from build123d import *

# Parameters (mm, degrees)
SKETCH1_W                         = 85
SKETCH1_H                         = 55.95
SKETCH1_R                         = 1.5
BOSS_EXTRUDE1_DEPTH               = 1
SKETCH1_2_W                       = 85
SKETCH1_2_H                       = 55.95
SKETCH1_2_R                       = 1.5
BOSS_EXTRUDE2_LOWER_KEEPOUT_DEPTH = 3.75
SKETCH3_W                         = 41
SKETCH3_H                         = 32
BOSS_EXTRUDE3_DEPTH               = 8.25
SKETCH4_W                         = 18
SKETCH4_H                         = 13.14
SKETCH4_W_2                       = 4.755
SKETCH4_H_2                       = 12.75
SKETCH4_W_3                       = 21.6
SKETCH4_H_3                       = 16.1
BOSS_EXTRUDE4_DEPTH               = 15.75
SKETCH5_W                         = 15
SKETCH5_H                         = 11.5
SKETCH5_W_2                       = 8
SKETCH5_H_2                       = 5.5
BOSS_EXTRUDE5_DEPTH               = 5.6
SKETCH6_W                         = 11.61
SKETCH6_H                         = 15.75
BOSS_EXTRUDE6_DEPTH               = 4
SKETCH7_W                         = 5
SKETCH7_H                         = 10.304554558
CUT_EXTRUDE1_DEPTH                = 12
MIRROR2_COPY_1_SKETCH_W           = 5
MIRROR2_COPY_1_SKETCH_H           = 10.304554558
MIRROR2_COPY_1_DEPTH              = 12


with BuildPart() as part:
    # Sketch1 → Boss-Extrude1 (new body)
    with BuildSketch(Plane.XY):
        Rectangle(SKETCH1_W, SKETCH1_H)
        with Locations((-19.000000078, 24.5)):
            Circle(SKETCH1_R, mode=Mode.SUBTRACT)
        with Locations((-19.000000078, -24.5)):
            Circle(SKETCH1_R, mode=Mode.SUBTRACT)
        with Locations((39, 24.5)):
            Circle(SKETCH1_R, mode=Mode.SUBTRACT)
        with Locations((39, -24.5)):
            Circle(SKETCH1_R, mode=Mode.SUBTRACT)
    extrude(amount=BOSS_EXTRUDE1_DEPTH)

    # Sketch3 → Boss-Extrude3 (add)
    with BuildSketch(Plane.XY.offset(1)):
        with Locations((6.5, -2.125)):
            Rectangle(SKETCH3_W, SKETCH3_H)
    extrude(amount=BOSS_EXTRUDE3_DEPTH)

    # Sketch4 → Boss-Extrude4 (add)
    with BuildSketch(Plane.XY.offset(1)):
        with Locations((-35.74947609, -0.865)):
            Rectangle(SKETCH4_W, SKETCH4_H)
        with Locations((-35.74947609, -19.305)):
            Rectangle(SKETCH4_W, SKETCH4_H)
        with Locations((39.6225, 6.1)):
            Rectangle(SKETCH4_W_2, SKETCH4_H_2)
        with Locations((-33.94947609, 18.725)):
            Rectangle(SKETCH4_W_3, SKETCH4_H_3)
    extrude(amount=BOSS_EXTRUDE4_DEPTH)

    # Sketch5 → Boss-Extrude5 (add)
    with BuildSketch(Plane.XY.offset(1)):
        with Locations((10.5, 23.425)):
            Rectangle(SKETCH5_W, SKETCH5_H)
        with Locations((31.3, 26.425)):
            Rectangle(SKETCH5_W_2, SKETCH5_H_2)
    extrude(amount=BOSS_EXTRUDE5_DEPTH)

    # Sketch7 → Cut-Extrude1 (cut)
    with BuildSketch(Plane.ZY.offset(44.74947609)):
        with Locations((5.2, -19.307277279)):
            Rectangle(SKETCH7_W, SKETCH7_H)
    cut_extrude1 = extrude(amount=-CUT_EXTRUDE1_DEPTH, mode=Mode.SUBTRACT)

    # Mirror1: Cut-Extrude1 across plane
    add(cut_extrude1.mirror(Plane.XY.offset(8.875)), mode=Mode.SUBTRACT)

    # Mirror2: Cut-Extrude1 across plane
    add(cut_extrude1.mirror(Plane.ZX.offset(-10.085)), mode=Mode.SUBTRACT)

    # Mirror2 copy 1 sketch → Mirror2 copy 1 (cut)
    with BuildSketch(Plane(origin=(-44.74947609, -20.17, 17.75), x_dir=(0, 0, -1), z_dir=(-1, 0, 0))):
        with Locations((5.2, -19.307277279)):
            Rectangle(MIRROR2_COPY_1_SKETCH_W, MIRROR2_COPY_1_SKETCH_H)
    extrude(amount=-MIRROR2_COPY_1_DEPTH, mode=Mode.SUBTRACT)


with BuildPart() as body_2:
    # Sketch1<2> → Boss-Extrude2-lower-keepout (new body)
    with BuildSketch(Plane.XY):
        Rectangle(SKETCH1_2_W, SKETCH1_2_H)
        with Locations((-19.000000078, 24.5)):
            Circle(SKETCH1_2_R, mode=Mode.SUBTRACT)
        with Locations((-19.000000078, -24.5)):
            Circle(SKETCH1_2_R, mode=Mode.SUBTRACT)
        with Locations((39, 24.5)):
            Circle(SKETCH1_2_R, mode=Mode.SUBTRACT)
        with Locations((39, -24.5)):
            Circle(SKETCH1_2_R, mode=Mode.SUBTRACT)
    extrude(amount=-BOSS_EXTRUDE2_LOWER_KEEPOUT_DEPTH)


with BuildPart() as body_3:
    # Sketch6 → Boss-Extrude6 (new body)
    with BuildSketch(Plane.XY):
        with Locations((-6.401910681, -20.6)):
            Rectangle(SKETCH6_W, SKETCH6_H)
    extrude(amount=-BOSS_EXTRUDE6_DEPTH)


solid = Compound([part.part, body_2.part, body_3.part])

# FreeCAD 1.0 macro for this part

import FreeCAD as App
import Part
import Sketcher

V = App.Vector


def add_polygon(sketch, points):
    """Adds a closed chain of lines whose ends are joined by coincident constraints."""
    first, n = sketch.GeometryCount, len(points)
    for a, b in zip(points, points[1:] + points[:1]):
        sketch.addGeometry(Part.LineSegment(App.Vector(*a, 0), App.Vector(*b, 0)), False)
    for i in range(n):
        sketch.addConstraint(Sketcher.Constraint("Coincident", first + i, 2, first + (i + 1) % n, 1))

doc = App.newDocument("Part")
body = doc.addObject("PartDesign::Body", "Body")

# Sketch on XY plane
sketch1 = doc.addObject("Sketcher::SketchObject", "Sketch")
body.addObject(sketch1)
sketch1.AttachmentSupport = (doc.XY_Plane, [""])
sketch1.MapMode = "FlatFace"
add_polygon(sketch1, [(-42.5, 28), (-42.5, -28), (42.5, -28), (42.5, 28)])  # lines 0-3
sketch1.addGeometry(Part.Circle(V(-19, -24.5, 0), V(0, 0, 1), 1.5), False)  # 4
sketch1.addGeometry(Part.Circle(V(39, -24.5, 0), V(0, 0, 1), 1.5), False)  # 5
sketch1.addGeometry(Part.Circle(V(-19, 24.5, 0), V(0, 0, 1), 1.5), False)  # 6
sketch1.addGeometry(Part.Circle(V(39, 24.5, 0), V(0, 0, 1), 1.5), False)  # 7
sketch1.addConstraint([
    Sketcher.Constraint("Vertical", 0),
    Sketcher.Constraint("Horizontal", 1),
    Sketcher.Constraint("Vertical", 2),
    Sketcher.Constraint("Horizontal", 3),
    Sketcher.Constraint("Equal", 4, 5),
    Sketcher.Constraint("Equal", 5, 6),
    Sketcher.Constraint("Equal", 6, 7),
    Sketcher.Constraint("Symmetric", 0, 2, 2, 2, -1, 1),
    Sketcher.Constraint("Symmetric", 4, 3, 6, 3, -1),
    Sketcher.Constraint("Symmetric", 5, 3, 7, 3, -1),
    Sketcher.Constraint("Horizontal", 4, 3, 5, 3),
    Sketcher.Constraint("Diameter", 4, 3.0),
    Sketcher.Constraint("DistanceX", 1, 1, 1, 2, 85.0),
    Sketcher.Constraint("DistanceX", 4, 3, -1, 1, 19.0),
    Sketcher.Constraint("DistanceX", -1, 1, 5, 3, 39.0),
    Sketcher.Constraint("DistanceY", 4, 3, 6, 3, 49.0),
    Sketcher.Constraint("DistanceY", 0, 2, 0, 1, 55.95),
])
pad1 = doc.addObject("PartDesign::Pad", "Pad")
body.addObject(pad1)
pad1.Profile = sketch1
pad1.Length = 1

# Sketch on XY plane
sketch2 = doc.addObject("Sketcher::SketchObject", "Sketch001")
body.addObject(sketch2)
sketch2.AttachmentSupport = (doc.XY_Plane, [""])
sketch2.MapMode = "FlatFace"
sketch2.AttachmentOffset = App.Placement(V(0, 0, 1), App.Rotation())
add_polygon(sketch2, [(-14, 14), (-14, -18), (27, -18), (27, 14)])  # lines 0-3
sketch2.addConstraint([
    Sketcher.Constraint("Vertical", 0),
    Sketcher.Constraint("Horizontal", 1),
    Sketcher.Constraint("Vertical", 2),
    Sketcher.Constraint("Horizontal", 3),
    Sketcher.Constraint("DistanceX", 1, 1, 1, 2, 41.0),
    Sketcher.Constraint("DistanceY", 0, 2, 0, 1, 32.0),
    Sketcher.Constraint("DistanceX", 0, 2, -1, 1, 14.0),
    Sketcher.Constraint("DistanceY", 0, 2, -1, 1, 18.125),
])
pad2 = doc.addObject("PartDesign::Pad", "Pad001")
body.addObject(pad2)
pad2.Profile = sketch2
pad2.Length = 8.25

# Sketch on XY plane
sketch3 = doc.addObject("Sketcher::SketchObject", "Sketch002")
body.addObject(sketch3)
sketch3.AttachmentSupport = (doc.XY_Plane, [""])
sketch3.MapMode = "FlatFace"
sketch3.AttachmentOffset = App.Placement(V(0, 0, 1), App.Rotation())
add_polygon(sketch3, [(-44.7, 5.7), (-44.7, -7.4), (-26.7, -7.4), (-26.7, 5.7)])  # lines 0-3
add_polygon(sketch3, [(-44.7, -12.7), (-44.7, -25.9), (-26.7, -25.9), (-26.7, -12.7)])  # lines 4-7
add_polygon(sketch3, [(37.2, 12.5), (37.2, -0.3), (42, -0.3), (42, 12.5)])  # lines 8-11
add_polygon(sketch3, [(-44.7, 26.8), (-44.7, 10.7), (-23.1, 10.7), (-23.1, 26.8)])  # lines 12-15
sketch3.addConstraint([
    Sketcher.Constraint("Vertical", 0),
    Sketcher.Constraint("Horizontal", 1),
    Sketcher.Constraint("Vertical", 2),
    Sketcher.Constraint("Horizontal", 3),
    Sketcher.Constraint("Vertical", 4),
    Sketcher.Constraint("Horizontal", 5),
    Sketcher.Constraint("Vertical", 6),
    Sketcher.Constraint("Horizontal", 7),
    Sketcher.Constraint("Vertical", 8),
    Sketcher.Constraint("Horizontal", 9),
    Sketcher.Constraint("Vertical", 10),
    Sketcher.Constraint("Horizontal", 11),
    Sketcher.Constraint("Vertical", 12),
    Sketcher.Constraint("Horizontal", 13),
    Sketcher.Constraint("Vertical", 14),
    Sketcher.Constraint("Horizontal", 15),
    Sketcher.Constraint("Vertical", 3, 2, 4, 2),
    Sketcher.Constraint("Vertical", 2, 2, 5, 2),
    Sketcher.Constraint("Vertical", 7, 2, 12, 2),
    Sketcher.Constraint("Equal", 2, 4),
    Sketcher.Constraint("DistanceX", 1, 1, 1, 2, 18.0),
    Sketcher.Constraint("DistanceX", 13, 1, 13, 2, 21.6),
    Sketcher.Constraint("DistanceY", 12, 2, 12, 1, 16.1),
    Sketcher.Constraint("DistanceX", -1, 1, 9, 2, 42.0),
    Sketcher.Constraint("DistanceY", 0, 2, 0, 1, 13.14),
    Sketcher.Constraint("DistanceY", 8, 2, 8, 1, 12.75),
    Sketcher.Constraint("DistanceY", 6, 2, 1, 2, 5.3),
    Sketcher.Constraint("DistanceY", 5, 2, 8, 2, 25.6),
    Sketcher.Constraint("DistanceX", 9, 1, 9, 2, 4.755),
    Sketcher.Constraint("DistanceY", 3, 2, 12, 2, 4.97),
    Sketcher.Constraint("DistanceY", 0, 2, -1, 1, 7.435),
    Sketcher.Constraint("DistanceX", 0, 2, -1, 1, 44.749476),
])
pad3 = doc.addObject("PartDesign::Pad", "Pad002")
body.addObject(pad3)
pad3.Profile = sketch3
pad3.Length = 15.75

# Sketch on XY plane
sketch4 = doc.addObject("Sketcher::SketchObject", "Sketch003")
body.addObject(sketch4)
sketch4.AttachmentSupport = (doc.XY_Plane, [""])
sketch4.MapMode = "FlatFace"
sketch4.AttachmentOffset = App.Placement(V(0, 0, 1), App.Rotation())
add_polygon(sketch4, [(3, 29), (3, 18), (18, 18), (18, 29)])  # lines 0-3
add_polygon(sketch4, [(27, 29), (27, 24), (35, 24), (35, 29)])  # lines 4-7
sketch4.addConstraint([
    Sketcher.Constraint("Vertical", 0),
    Sketcher.Constraint("Horizontal", 1),
    Sketcher.Constraint("Vertical", 2),
    Sketcher.Constraint("Horizontal", 3),
    Sketcher.Constraint("Vertical", 4),
    Sketcher.Constraint("Horizontal", 5),
    Sketcher.Constraint("Vertical", 6),
    Sketcher.Constraint("Horizontal", 7),
    Sketcher.Constraint("Horizontal", 3, 2, 6, 2),
    Sketcher.Constraint("DistanceX", 1, 1, 1, 2, 15.0),
    Sketcher.Constraint("DistanceX", 5, 1, 5, 2, 8.0),
    Sketcher.Constraint("DistanceY", 0, 2, 0, 1, 11.5),
    Sketcher.Constraint("DistanceY", 4, 2, 4, 1, 5.5),
    Sketcher.Constraint("DistanceX", -1, 1, 0, 2, 3.0),
    Sketcher.Constraint("DistanceX", -1, 1, 4, 2, 27.3),
    Sketcher.Constraint("DistanceY", -1, 1, 0, 2, 17.675),
])
pad4 = doc.addObject("PartDesign::Pad", "Pad003")
body.addObject(pad4)
pad4.Profile = sketch4
pad4.Length = 5.6

# Sketch on YZ plane
sketch5 = doc.addObject("Sketcher::SketchObject", "Sketch004")
body.addObject(sketch5)
sketch5.AttachmentSupport = (doc.YZ_Plane, [""])
sketch5.MapMode = "FlatFace"
sketch5.AttachmentOffset = App.Placement(V(0, 0, -44.749476), App.Rotation())
add_polygon(sketch5, [(-14, 3), (-24, 3), (-24, 8), (-14, 8)])  # lines 0-3
sketch5.addConstraint([
    Sketcher.Constraint("Horizontal", 0),
    Sketcher.Constraint("Vertical", 1),
    Sketcher.Constraint("Horizontal", 2),
    Sketcher.Constraint("Vertical", 3),
    Sketcher.Constraint("DistanceY", 1, 1, 1, 2, 5.0),
    Sketcher.Constraint("DistanceY", -1, 1, 0, 2, 2.7),
    Sketcher.Constraint("DistanceX", 2, 2, -1, 1, 14.155),
    Sketcher.Constraint("DistanceX", 0, 2, 0, 1, 10.304555),
])
pocket1 = doc.addObject("PartDesign::Pocket", "Pocket")
body.addObject(pocket1)
pocket1.Profile = sketch5
pocket1.Length = 12
pocket1.Reversed = True
doc.recompute()

datumplane = doc.addObject("PartDesign::Plane", "DatumPlane")
body.addObject(datumplane)
datumplane.AttachmentSupport = (doc.XY_Plane, [""])
datumplane.MapMode = "FlatFace"
datumplane.AttachmentOffset = App.Placement(V(0, 0, 8.875), App.Rotation())
mirrored = doc.addObject("PartDesign::Mirrored", "Mirrored")
body.addObject(mirrored)
mirrored.Originals = [pocket1]
mirrored.MirrorPlane = (datumplane, [""])
body.Tip = mirrored
doc.recompute()

datumplane2 = doc.addObject("PartDesign::Plane", "DatumPlane001")
body.addObject(datumplane2)
datumplane2.AttachmentSupport = (doc.XZ_Plane, [""])
datumplane2.MapMode = "FlatFace"
datumplane2.AttachmentOffset = App.Placement(V(0, 0, 10.085), App.Rotation())
mirrored2 = doc.addObject("PartDesign::Mirrored", "Mirrored001")
body.addObject(mirrored2)
mirrored2.Originals = [pocket1]
mirrored2.MirrorPlane = (datumplane2, [""])
body.Tip = mirrored2

# Sketch on YZ plane
sketch6 = doc.addObject("Sketcher::SketchObject", "Sketch005")
body.addObject(sketch6)
sketch6.AttachmentSupport = (doc.YZ_Plane, [""])
sketch6.MapMode = "FlatFace"
sketch6.AttachmentOffset = App.Placement(V(0, 0, -44.749476), App.Rotation())
add_polygon(sketch6, [(-6, 15), (4, 15), (4, 10), (-6, 10)])  # lines 0-3
sketch6.addConstraint([
    Sketcher.Constraint("Horizontal", 0),
    Sketcher.Constraint("Vertical", 1),
    Sketcher.Constraint("Horizontal", 2),
    Sketcher.Constraint("Vertical", 3),
    Sketcher.Constraint("DistanceY", 1, 2, 1, 1, 5.0),
    Sketcher.Constraint("DistanceY", -1, 1, 0, 2, 15.05),
    Sketcher.Constraint("DistanceX", 2, 2, -1, 1, 6.015),
    Sketcher.Constraint("DistanceX", 0, 1, 0, 2, 10.304555),
])
pocket2 = doc.addObject("PartDesign::Pocket", "Pocket001")
body.addObject(pocket2)
pocket2.Profile = sketch6
pocket2.Length = 12
pocket2.Reversed = True
body2 = doc.addObject("PartDesign::Body", "Body001")

# Sketch on XY plane
sketch7 = doc.addObject("Sketcher::SketchObject", "Sketch006")
body2.addObject(sketch7)
sketch7.AttachmentSupport = (doc.getObject("XY_Plane001"), [""])
sketch7.MapMode = "FlatFace"
add_polygon(sketch7, [(-42.5, 28), (-42.5, -28), (42.5, -28), (42.5, 28)])  # lines 0-3
sketch7.addGeometry(Part.Circle(V(-19, -24.5, 0), V(0, 0, 1), 1.5), False)  # 4
sketch7.addGeometry(Part.Circle(V(39, -24.5, 0), V(0, 0, 1), 1.5), False)  # 5
sketch7.addGeometry(Part.Circle(V(-19, 24.5, 0), V(0, 0, 1), 1.5), False)  # 6
sketch7.addGeometry(Part.Circle(V(39, 24.5, 0), V(0, 0, 1), 1.5), False)  # 7
sketch7.addConstraint([
    Sketcher.Constraint("Vertical", 0),
    Sketcher.Constraint("Horizontal", 1),
    Sketcher.Constraint("Vertical", 2),
    Sketcher.Constraint("Horizontal", 3),
    Sketcher.Constraint("Equal", 4, 5),
    Sketcher.Constraint("Equal", 5, 6),
    Sketcher.Constraint("Equal", 6, 7),
    Sketcher.Constraint("Symmetric", 0, 2, 2, 2, -1, 1),
    Sketcher.Constraint("Symmetric", 4, 3, 6, 3, -1),
    Sketcher.Constraint("Symmetric", 5, 3, 7, 3, -1),
    Sketcher.Constraint("Horizontal", 4, 3, 5, 3),
    Sketcher.Constraint("Diameter", 4, 3.0),
    Sketcher.Constraint("DistanceX", 1, 1, 1, 2, 85.0),
    Sketcher.Constraint("DistanceX", 4, 3, -1, 1, 19.0),
    Sketcher.Constraint("DistanceX", -1, 1, 5, 3, 39.0),
    Sketcher.Constraint("DistanceY", 4, 3, 6, 3, 49.0),
    Sketcher.Constraint("DistanceY", 0, 2, 0, 1, 55.95),
])
pad5 = doc.addObject("PartDesign::Pad", "Pad004")
body2.addObject(pad5)
pad5.Profile = sketch7
pad5.Length = 3.75
pad5.Reversed = True
body3 = doc.addObject("PartDesign::Body", "Body002")

# Sketch on XY plane
sketch8 = doc.addObject("Sketcher::SketchObject", "Sketch007")
body3.addObject(sketch8)
sketch8.AttachmentSupport = (doc.getObject("XY_Plane002"), [""])
sketch8.MapMode = "FlatFace"
add_polygon(sketch8, [(-12, -13), (-12, -28), (-1, -28), (-1, -13)])  # lines 0-3
sketch8.addConstraint([
    Sketcher.Constraint("Vertical", 0),
    Sketcher.Constraint("Horizontal", 1),
    Sketcher.Constraint("Vertical", 2),
    Sketcher.Constraint("Horizontal", 3),
    Sketcher.Constraint("DistanceX", 1, 1, 1, 2, 11.61),
    Sketcher.Constraint("DistanceY", 0, 2, 0, 1, 15.75),
    Sketcher.Constraint("DistanceY", 0, 2, -1, 1, 28.475),
    Sketcher.Constraint("DistanceX", 0, 2, -1, 1, 12.206911),
])
pad6 = doc.addObject("PartDesign::Pad", "Pad005")
body3.addObject(pad6)
pad6.Profile = sketch8
pad6.Length = 4
pad6.Reversed = True

doc.recompute()
